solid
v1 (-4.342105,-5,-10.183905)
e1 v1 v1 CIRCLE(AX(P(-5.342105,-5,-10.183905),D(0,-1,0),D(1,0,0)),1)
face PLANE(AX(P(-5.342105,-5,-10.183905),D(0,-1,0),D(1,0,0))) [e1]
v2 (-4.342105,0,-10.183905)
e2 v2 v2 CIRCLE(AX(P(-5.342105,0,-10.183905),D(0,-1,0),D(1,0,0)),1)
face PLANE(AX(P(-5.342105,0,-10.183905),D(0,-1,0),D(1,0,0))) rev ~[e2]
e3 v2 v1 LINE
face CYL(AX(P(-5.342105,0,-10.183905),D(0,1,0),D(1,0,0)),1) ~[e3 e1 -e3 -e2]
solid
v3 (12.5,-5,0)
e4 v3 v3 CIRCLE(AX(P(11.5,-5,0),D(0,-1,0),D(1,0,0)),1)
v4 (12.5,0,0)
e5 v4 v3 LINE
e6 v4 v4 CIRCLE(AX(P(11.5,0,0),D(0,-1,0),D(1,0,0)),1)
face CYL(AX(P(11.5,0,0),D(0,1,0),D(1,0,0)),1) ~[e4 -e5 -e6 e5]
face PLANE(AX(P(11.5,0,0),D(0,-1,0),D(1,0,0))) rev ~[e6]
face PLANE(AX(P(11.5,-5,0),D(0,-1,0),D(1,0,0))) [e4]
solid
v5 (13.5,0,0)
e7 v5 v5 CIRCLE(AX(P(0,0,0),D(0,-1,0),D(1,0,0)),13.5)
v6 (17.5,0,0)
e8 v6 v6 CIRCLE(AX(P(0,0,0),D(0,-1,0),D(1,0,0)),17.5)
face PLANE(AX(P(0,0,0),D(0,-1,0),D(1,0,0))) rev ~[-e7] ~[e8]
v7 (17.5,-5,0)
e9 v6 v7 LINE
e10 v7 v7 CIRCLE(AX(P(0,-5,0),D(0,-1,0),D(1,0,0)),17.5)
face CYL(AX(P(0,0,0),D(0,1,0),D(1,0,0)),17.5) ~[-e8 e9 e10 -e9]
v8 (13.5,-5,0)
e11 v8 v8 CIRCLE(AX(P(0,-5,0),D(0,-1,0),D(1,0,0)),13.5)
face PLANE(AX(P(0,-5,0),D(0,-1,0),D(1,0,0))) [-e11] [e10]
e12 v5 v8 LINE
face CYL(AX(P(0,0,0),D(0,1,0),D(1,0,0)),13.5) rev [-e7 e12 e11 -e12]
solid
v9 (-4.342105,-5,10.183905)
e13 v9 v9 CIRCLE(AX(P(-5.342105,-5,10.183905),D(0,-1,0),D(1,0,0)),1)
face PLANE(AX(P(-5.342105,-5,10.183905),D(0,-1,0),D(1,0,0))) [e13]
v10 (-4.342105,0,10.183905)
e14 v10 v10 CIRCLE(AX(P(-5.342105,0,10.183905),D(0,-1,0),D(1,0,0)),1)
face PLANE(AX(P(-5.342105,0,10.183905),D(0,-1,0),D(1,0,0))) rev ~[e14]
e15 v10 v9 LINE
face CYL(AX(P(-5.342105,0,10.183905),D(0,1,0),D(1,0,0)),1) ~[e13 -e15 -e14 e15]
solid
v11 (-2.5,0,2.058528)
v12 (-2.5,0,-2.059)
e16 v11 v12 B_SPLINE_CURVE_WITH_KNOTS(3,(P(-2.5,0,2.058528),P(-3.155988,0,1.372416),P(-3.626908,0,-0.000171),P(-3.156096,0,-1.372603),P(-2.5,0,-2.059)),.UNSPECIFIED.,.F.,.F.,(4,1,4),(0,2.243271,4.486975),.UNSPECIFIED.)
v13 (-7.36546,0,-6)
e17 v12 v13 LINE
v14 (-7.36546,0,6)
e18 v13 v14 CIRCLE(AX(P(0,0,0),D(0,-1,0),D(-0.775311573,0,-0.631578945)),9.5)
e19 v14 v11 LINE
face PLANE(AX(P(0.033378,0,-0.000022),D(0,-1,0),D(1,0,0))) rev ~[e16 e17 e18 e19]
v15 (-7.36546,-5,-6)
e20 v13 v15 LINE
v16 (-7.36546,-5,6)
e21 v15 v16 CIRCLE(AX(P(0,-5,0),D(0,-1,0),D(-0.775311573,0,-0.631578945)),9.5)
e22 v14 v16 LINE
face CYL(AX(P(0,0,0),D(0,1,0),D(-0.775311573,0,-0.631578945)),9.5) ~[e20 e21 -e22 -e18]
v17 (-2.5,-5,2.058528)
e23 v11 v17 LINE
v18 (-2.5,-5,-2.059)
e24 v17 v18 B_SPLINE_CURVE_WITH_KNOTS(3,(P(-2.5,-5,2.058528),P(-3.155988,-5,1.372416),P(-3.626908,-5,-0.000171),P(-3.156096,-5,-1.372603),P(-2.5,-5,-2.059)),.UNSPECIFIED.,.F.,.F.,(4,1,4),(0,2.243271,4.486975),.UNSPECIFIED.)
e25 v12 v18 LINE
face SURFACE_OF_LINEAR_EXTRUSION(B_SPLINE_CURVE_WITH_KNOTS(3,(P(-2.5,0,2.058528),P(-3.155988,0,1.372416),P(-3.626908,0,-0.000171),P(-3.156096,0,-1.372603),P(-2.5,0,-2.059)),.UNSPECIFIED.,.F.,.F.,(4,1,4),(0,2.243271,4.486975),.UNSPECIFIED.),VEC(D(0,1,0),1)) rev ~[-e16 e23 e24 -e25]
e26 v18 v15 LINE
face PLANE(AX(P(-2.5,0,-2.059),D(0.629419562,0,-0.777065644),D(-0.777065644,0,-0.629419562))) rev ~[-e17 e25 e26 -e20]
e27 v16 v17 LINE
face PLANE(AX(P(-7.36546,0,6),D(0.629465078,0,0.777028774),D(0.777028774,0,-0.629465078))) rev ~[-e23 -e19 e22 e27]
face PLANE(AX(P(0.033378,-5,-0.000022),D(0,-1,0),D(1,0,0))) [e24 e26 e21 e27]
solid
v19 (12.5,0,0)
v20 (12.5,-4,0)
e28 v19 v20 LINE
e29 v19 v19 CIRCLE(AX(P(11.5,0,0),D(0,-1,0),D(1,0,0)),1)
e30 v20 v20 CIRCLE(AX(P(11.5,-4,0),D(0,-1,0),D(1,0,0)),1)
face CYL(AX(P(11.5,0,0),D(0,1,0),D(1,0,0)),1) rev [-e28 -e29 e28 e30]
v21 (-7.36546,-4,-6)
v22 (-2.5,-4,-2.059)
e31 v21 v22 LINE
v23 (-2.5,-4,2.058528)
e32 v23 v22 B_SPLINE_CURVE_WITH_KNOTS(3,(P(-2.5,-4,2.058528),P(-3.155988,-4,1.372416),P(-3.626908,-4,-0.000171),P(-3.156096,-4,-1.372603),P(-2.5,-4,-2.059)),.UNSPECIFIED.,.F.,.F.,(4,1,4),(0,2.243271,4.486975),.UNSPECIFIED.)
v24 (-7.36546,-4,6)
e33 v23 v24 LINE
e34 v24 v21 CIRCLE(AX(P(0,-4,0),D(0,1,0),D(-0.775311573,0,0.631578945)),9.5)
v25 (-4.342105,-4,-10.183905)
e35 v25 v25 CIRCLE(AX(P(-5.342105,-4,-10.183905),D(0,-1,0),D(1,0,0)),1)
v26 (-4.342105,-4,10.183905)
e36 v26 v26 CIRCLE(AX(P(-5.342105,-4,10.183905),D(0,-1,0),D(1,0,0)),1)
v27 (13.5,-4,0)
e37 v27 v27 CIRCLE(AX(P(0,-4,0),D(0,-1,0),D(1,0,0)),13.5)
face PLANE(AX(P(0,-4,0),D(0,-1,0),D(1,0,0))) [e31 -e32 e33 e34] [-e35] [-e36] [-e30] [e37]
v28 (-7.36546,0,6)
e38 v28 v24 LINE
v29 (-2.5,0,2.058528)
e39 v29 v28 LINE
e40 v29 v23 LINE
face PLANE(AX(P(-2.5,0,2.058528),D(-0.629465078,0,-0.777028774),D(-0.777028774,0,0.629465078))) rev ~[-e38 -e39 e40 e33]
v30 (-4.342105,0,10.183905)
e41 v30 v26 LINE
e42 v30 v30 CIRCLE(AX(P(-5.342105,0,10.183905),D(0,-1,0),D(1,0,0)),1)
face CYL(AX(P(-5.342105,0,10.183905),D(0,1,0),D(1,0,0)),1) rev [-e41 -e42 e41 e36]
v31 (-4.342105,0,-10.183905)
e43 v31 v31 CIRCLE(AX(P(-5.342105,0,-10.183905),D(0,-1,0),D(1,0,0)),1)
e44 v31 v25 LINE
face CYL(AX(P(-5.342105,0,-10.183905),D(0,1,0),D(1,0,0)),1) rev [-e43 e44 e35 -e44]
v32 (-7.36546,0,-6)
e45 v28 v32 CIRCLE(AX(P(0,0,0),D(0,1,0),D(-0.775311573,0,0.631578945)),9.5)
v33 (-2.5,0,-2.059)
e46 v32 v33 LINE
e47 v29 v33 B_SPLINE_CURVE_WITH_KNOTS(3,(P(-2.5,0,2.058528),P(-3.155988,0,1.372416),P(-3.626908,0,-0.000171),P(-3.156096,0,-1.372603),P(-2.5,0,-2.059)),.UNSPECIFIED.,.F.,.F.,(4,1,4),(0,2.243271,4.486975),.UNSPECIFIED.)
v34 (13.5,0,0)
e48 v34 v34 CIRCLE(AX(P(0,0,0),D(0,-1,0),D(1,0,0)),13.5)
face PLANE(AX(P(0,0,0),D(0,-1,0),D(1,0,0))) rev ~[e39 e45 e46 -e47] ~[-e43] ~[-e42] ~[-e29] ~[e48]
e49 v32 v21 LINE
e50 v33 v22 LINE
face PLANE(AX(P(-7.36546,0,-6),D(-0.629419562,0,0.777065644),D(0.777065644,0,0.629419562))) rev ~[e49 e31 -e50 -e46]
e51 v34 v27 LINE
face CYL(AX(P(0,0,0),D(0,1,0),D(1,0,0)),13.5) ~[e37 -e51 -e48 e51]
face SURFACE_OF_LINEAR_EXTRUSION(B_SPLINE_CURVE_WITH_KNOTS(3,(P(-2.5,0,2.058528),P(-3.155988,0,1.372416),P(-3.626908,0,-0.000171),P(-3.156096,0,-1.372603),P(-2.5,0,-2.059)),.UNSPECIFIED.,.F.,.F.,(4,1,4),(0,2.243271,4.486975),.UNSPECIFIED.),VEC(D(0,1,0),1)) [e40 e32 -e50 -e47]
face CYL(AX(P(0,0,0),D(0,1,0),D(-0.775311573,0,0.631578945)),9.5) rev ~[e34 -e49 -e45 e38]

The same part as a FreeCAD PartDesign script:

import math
import FreeCAD as App
import Part
import Sketcher

doc = App.newDocument("Part")
body = doc.addObject("PartDesign::Body", "Body")
body.AllowCompound = True

# Sketch on XZ plane
sketch1 = body.newObject("Sketcher::SketchObject", "Sketch")
sketch1.AttachmentSupport = (doc.getObject("XZ_Plane"), [""])
sketch1.MapMode = "FlatFace"
sketch1.addGeometry(Part.Circle(App.Vector(0, 0, 0), App.Vector(0, 0, 1), 17.5), False)
sketch1.addGeometry(Part.Circle(App.Vector(0, 0, 0), App.Vector(0, 0, 1), 13.5), False)
sketch1.addGeometry(Part.ArcOfCircle(Part.Circle(App.Vector(0, 0, 0), App.Vector(0, 0, 1), 9.5), math.radians(-140.833289), math.radians(140.833289)), False)
sketch1.addGeometry(Part.LineSegment(App.Vector(-7.36546, 6, 0), App.Vector(-2.5, 2.058528, 0)), False)
sketch1.addGeometry(Part.BSplineCurve([App.Vector(-2.5, 2.058528, 0), App.Vector(-3.155988, 1.372416, 0), App.Vector(-3.626908, -0.000171, 0), App.Vector(-3.156096, -1.372603, 0), App.Vector(-2.5, -2.059, 0)], [4, 1, 4], [0, 2.243271, 4.486975], False, 3, [1, 1, 1, 1, 1], False), False)
sketch1.addGeometry(Part.LineSegment(App.Vector(-2.5, -2.059, 0), App.Vector(-7.36546, -6, 0)), False)
sketch1.addGeometry(Part.Circle(App.Vector(-5.342105, -10.183905, 0), App.Vector(0, 0, 1), 1), False)
sketch1.addGeometry(Part.Circle(App.Vector(-5.342105, 10.183905, 0), App.Vector(0, 0, 1), 1), False)
sketch1.addGeometry(Part.Circle(App.Vector(11.5, 0, 0), App.Vector(0, 0, 1), 1), False)
sketch1.addConstraint(Sketcher.Constraint("Block", 4))
sketch1.addConstraint(Sketcher.Constraint("Coincident", 2, 2, 3, 1))
sketch1.addConstraint(Sketcher.Constraint("Coincident", 3, 2, 4, 1))
sketch1.addConstraint(Sketcher.Constraint("Coincident", 4, 2, 5, 1))
sketch1.addConstraint(Sketcher.Constraint("Coincident", 5, 2, 2, 1))
sketch1.addConstraint(Sketcher.Constraint("Coincident", 0, 3, -1, 1))
sketch1.addConstraint(Sketcher.Constraint("Coincident", 1, 3, -1, 1))
sketch1.addConstraint(Sketcher.Constraint("Coincident", 2, 3, -1, 1))
sketch1.addConstraint(Sketcher.Constraint("Equal", 6, 7))
sketch1.addConstraint(Sketcher.Constraint("Equal", 7, 8))
sketch1.addConstraint(Sketcher.Constraint("Symmetric", 6, 3, 7, 3, -1))
sketch1.addConstraint(Sketcher.Constraint("PointOnObject", 8, 3, -1))
sketch1.addConstraint(Sketcher.Constraint("Vertical", 2, 2, 5, 2))
sketch1.addConstraint(Sketcher.Constraint("Diameter", 0, 35.0))
sketch1.addConstraint(Sketcher.Constraint("Diameter", 1, 27.0))
sketch1.addConstraint(Sketcher.Constraint("Diameter", 6, 2.0))
sketch1.addConstraint(Sketcher.Constraint("Radius", 2, 9.5))
sketch1.addConstraint(Sketcher.Constraint("DistanceY", -1, 1, 2, 2, 6.0))
sketch1.addConstraint(Sketcher.Constraint("DistanceX", -1, 1, 8, 3, 11.5))
sketch1.addConstraint(Sketcher.Constraint("DistanceY", 6, 3, 7, 3, 20.36781))
sketch1.addConstraint(Sketcher.Constraint("DistanceX", 6, 3, -1, 1, 5.342105))
pad1 = body.newObject("PartDesign::Pad", "Pad")
pad1.Profile = sketch1
pad1.Length = 5
body2 = doc.addObject("PartDesign::Body", "Body001")

# Sketch on XZ plane
sketch2 = body2.newObject("Sketcher::SketchObject", "Sketch001")
sketch2.AttachmentSupport = (doc.getObject("XZ_Plane001"), [""])
sketch2.MapMode = "FlatFace"
sketch2.addGeometry(Part.Circle(App.Vector(0, 0, 0), App.Vector(0, 0, 1), 13.5), False)
sketch2.addGeometry(Part.Circle(App.Vector(-5.342105, -10.183905, 0), App.Vector(0, 0, 1), 1), False)
sketch2.addGeometry(Part.BSplineCurve([App.Vector(-2.5, 2.058528, 0), App.Vector(-3.155988, 1.372416, 0), App.Vector(-3.626908, -0.000171, 0), App.Vector(-3.156096, -1.372603, 0), App.Vector(-2.5, -2.059, 0)], [4, 1, 4], [0, 2.243271, 4.486975], False, 3, [1, 1, 1, 1, 1], False), False)
sketch2.addGeometry(Part.LineSegment(App.Vector(-2.5, 2.058528, 0), App.Vector(-7.36546, 6, 0)), False)
sketch2.addGeometry(Part.ArcOfCircle(Part.Circle(App.Vector(0, 0, 0), App.Vector(0, 0, 1), 9.5), math.radians(-140.833289), math.radians(140.833289)), False)
sketch2.addGeometry(Part.LineSegment(App.Vector(-7.36546, -6, 0), App.Vector(-2.5, -2.059, 0)), False)
sketch2.addGeometry(Part.Circle(App.Vector(-5.342105, 10.183905, 0), App.Vector(0, 0, 1), 1), False)
sketch2.addGeometry(Part.Circle(App.Vector(11.5, 0, 0), App.Vector(0, 0, 1), 1), False)
sketch2.addConstraint(Sketcher.Constraint("Block", 2))
sketch2.addConstraint(Sketcher.Constraint("Coincident", 2, 1, 3, 1))
sketch2.addConstraint(Sketcher.Constraint("Coincident", 3, 2, 4, 2))
sketch2.addConstraint(Sketcher.Constraint("Coincident", 4, 1, 5, 1))
sketch2.addConstraint(Sketcher.Constraint("Coincident", 5, 2, 2, 2))
sketch2.addConstraint(Sketcher.Constraint("Coincident", 0, 3, -1, 1))
sketch2.addConstraint(Sketcher.Constraint("Coincident", 4, 3, -1, 1))
sketch2.addConstraint(Sketcher.Constraint("Equal", 1, 6))
sketch2.addConstraint(Sketcher.Constraint("Equal", 6, 7))
sketch2.addConstraint(Sketcher.Constraint("Symmetric", 1, 3, 6, 3, -1))
sketch2.addConstraint(Sketcher.Constraint("PointOnObject", 7, 3, -1))
sketch2.addConstraint(Sketcher.Constraint("Vertical", 3, 2, 4, 1))
sketch2.addConstraint(Sketcher.Constraint("Diameter", 0, 27.0))
sketch2.addConstraint(Sketcher.Constraint("Diameter", 1, 2.0))
sketch2.addConstraint(Sketcher.Constraint("Radius", 4, 9.5))
sketch2.addConstraint(Sketcher.Constraint("DistanceY", -1, 1, 3, 2, 6.0))
sketch2.addConstraint(Sketcher.Constraint("DistanceX", -1, 1, 7, 3, 11.5))
sketch2.addConstraint(Sketcher.Constraint("DistanceY", 1, 3, 6, 3, 20.36781))
sketch2.addConstraint(Sketcher.Constraint("DistanceX", 1, 3, -1, 1, 5.342105))
pad2 = body2.newObject("PartDesign::Pad", "Pad001")
pad2.Profile = sketch2
pad2.Length = 4

doc.recompute()
